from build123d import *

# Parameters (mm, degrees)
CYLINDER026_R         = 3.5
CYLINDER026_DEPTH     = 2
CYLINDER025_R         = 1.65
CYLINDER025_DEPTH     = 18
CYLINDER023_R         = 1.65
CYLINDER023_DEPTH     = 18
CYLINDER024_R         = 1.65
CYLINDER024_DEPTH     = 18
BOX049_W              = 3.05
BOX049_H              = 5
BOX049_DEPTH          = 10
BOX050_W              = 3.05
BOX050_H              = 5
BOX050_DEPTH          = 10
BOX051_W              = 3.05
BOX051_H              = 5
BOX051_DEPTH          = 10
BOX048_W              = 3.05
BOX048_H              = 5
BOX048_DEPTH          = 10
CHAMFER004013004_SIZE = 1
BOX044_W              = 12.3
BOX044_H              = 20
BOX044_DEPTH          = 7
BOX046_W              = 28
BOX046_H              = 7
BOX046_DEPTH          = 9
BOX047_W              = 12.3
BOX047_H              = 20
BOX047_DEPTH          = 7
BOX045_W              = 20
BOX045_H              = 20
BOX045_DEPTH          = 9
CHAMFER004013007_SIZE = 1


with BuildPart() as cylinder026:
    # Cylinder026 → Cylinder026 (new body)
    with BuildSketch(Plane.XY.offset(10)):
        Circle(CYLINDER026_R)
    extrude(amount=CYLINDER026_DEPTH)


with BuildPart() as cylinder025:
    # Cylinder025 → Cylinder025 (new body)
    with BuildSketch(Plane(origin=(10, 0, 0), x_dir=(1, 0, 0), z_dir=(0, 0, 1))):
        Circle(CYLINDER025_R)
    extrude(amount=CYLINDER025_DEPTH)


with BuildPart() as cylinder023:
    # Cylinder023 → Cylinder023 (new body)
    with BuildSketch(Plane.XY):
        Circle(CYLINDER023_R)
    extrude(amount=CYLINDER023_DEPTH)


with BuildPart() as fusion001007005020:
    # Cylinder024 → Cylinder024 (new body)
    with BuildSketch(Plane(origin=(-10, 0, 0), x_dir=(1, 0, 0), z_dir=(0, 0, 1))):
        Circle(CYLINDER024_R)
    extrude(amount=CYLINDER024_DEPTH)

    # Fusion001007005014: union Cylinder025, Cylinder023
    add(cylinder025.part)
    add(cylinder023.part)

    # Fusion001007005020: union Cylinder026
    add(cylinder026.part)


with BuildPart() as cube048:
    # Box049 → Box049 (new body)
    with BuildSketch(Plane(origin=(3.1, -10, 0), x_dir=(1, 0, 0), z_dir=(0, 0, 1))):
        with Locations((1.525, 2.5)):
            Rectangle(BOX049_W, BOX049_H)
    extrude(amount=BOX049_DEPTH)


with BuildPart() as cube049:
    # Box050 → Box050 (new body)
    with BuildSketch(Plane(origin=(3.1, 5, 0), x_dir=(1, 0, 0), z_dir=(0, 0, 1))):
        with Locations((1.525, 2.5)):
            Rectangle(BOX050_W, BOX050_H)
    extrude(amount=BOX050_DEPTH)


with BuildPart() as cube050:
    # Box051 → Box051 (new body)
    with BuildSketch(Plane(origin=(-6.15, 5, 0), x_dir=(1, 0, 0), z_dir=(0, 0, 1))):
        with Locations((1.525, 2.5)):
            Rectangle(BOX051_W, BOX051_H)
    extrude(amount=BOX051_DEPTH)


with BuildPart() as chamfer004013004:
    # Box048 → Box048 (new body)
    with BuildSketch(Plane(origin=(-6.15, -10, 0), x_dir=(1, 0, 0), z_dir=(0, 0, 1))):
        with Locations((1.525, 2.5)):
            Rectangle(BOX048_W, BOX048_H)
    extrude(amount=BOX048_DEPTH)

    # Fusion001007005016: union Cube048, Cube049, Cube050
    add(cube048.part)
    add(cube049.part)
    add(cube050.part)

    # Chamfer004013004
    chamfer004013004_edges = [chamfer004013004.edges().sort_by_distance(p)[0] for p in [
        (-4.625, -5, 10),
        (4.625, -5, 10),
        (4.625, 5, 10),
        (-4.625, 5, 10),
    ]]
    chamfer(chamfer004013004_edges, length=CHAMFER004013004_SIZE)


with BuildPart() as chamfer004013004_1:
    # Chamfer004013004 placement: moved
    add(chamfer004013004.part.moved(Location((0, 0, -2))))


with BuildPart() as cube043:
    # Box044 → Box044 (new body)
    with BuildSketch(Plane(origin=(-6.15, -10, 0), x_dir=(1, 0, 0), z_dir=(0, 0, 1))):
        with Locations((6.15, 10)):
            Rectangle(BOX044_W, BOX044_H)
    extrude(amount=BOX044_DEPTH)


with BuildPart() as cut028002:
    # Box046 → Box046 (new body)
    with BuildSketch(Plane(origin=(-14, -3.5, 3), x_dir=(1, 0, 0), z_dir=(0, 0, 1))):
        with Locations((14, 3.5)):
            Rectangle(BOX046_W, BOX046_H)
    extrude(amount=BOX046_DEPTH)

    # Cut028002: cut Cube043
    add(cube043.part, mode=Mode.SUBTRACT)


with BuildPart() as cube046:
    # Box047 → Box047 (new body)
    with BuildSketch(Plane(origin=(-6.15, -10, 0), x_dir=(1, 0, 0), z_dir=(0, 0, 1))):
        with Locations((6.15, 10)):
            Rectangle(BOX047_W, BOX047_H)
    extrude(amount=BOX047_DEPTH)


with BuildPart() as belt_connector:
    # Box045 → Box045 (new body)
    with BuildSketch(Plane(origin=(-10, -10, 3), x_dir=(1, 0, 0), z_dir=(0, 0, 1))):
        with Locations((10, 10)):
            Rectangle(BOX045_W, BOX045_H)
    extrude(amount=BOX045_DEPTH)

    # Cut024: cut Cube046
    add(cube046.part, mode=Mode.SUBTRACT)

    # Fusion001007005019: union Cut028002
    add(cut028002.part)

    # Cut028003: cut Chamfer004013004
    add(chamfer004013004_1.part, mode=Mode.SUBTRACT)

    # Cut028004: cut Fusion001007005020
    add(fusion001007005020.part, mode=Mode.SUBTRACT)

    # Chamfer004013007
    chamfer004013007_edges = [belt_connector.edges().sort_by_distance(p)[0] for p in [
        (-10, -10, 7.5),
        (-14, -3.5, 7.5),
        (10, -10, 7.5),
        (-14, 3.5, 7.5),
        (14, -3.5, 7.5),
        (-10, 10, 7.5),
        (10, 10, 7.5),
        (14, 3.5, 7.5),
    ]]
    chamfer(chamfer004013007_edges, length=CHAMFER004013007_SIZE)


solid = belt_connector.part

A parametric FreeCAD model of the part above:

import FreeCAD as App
import Part
import Sketcher
from FreeCAD import Vector
Q = App.Units.Quantity


def edges_at(feature, points):
    """Names of the edges that pass closest to the given points."""
    edges = feature.Shape.Edges
    near = lambda p: min(range(len(edges)), key=lambda i: edges[i].distToShape(Part.Vertex(*p))[0])
    return sorted({f"Edge{near(p) + 1}" for p in points})

doc = App.newDocument("Part")
body = doc.addObject("PartDesign::Body", "Body")

sketch1 = body.newObject("Sketcher::SketchObject", "Sketch")
sketch1.AttachmentSupport = (doc.getObject("XY_Plane"), [""])
sketch1.MapMode = "FlatFace"
sketch1.AttachmentOffset = App.Placement(Vector(0, 0, 10), App.Rotation())
sketch1.addGeometry(Part.Circle(Vector(0, 0, 0), Vector(0, 0, 1), 3.5), False)
sketch1.addConstraint([
    Sketcher.Constraint("Coincident", 0, 3, -1, 1),
    Sketcher.Constraint("Diameter", 0, Q("7 mm")),
])
pad1 = body.newObject("PartDesign::Pad", "Pad")
pad1.Profile = sketch1
pad1.Length = 2
body2 = doc.addObject("PartDesign::Body", "Body001")

sketch2 = body2.newObject("Sketcher::SketchObject", "Sketch001")
sketch2.AttachmentSupport = (doc.getObject("XY_Plane001"), [""])
sketch2.MapMode = "FlatFace"
sketch2.addGeometry(Part.Circle(Vector(10, 0, 0), Vector(0, 0, 1), 1.6), False)
sketch2.addConstraint([
    Sketcher.Constraint("PointOnObject", 0, 3, -1),
    Sketcher.Constraint("Diameter", 0, Q("3.3 mm")),
    Sketcher.Constraint("DistanceX", -1, 1, 0, 3, Q("10 mm")),
])
pad2 = body2.newObject("PartDesign::Pad", "Pad001")
pad2.Profile = sketch2
pad2.Length = 18
body3 = doc.addObject("PartDesign::Body", "Body002")

sketch3 = body3.newObject("Sketcher::SketchObject", "Sketch002")
sketch3.AttachmentSupport = (doc.getObject("XY_Plane002"), [""])
sketch3.MapMode = "FlatFace"
sketch3.addGeometry(Part.Circle(Vector(0, 0, 0), Vector(0, 0, 1), 1.6), False)
sketch3.addConstraint([
    Sketcher.Constraint("Coincident", 0, 3, -1, 1),
    Sketcher.Constraint("Diameter", 0, Q("3.3 mm")),
])
pad3 = body3.newObject("PartDesign::Pad", "Pad002")
pad3.Profile = sketch3
pad3.Length = 18
body4 = doc.addObject("PartDesign::Body", "Body003")
body4.AllowCompound = True

sketch4 = body4.newObject("Sketcher::SketchObject", "Sketch003")
sketch4.AttachmentSupport = (doc.getObject("XY_Plane003"), [""])
sketch4.MapMode = "FlatFace"
sketch4.addGeometry(Part.Circle(Vector(-10, 0, 0), Vector(0, 0, 1), 1.6), False)
sketch4.addConstraint([
    Sketcher.Constraint("PointOnObject", 0, 3, -1),
    Sketcher.Constraint("Diameter", 0, Q("3.3 mm")),
    Sketcher.Constraint("DistanceX", 0, 3, -1, 1, Q("10 mm")),
])
pad4 = body4.newObject("PartDesign::Pad", "Pad003")
pad4.Profile = sketch4
pad4.Length = 18
doc.recompute()

boolean = body4.newObject("PartDesign::Boolean", "Boolean")
boolean.Type = "Fuse"
boolean.addObjects([body2])
doc.recompute()

boolean2 = body4.newObject("PartDesign::Boolean", "Boolean001")
boolean2.Type = "Fuse"
boolean2.addObjects([body3])
doc.recompute()

boolean3 = body4.newObject("PartDesign::Boolean", "Boolean002")
boolean3.Type = "Fuse"
boolean3.addObjects([body])
body5 = doc.addObject("PartDesign::Body", "Body004")

sketch5 = body5.newObject("Sketcher::SketchObject", "Sketch004")
sketch5.AttachmentSupport = (doc.getObject("XY_Plane004"), [""])
sketch5.MapMode = "FlatFace"
sketch5.addGeometry([
    Part.LineSegment(Vector(3.1, -5, 0), Vector(3.1, -10, 0)),
    Part.LineSegment(Vector(3.1, -10, 0), Vector(6.2, -10, 0)),
    Part.LineSegment(Vector(6.2, -10, 0), Vector(6.2, -5, 0)),
    Part.LineSegment(Vector(6.2, -5, 0), Vector(3.1, -5, 0)),
], False)
sketch5.addConstraint([
    Sketcher.Constraint("Coincident", 0, 2, 1, 1),
    Sketcher.Constraint("Coincident", 1, 2, 2, 1),
    Sketcher.Constraint("Coincident", 2, 2, 3, 1),
    Sketcher.Constraint("Coincident", 3, 2, 0, 1),
    Sketcher.Constraint("Vertical", 0),
    Sketcher.Constraint("Horizontal", 1),
    Sketcher.Constraint("Vertical", 2),
    Sketcher.Constraint("Horizontal", 3),
    Sketcher.Constraint("DistanceY", 0, 2, 0, 1, Q("5 mm")),
    Sketcher.Constraint("DistanceY", 0, 2, -1, 1, Q("10 mm")),
    Sketcher.Constraint("DistanceX", 1, 1, 1, 2, Q("3.05 mm")),
    Sketcher.Constraint("DistanceX", -1, 1, 0, 2, Q("3.1 mm")),
])
pad5 = body5.newObject("PartDesign::Pad", "Pad004")
pad5.Profile = sketch5
pad5.Length = 10
body6 = doc.addObject("PartDesign::Body", "Body005")

sketch6 = body6.newObject("Sketcher::SketchObject", "Sketch005")
sketch6.AttachmentSupport = (doc.getObject("XY_Plane005"), [""])
sketch6.MapMode = "FlatFace"
sketch6.addGeometry([
    Part.LineSegment(Vector(3.1, 10, 0), Vector(3.1, 5, 0)),
    Part.LineSegment(Vector(3.1, 5, 0), Vector(6.2, 5, 0)),
    Part.LineSegment(Vector(6.2, 5, 0), Vector(6.2, 10, 0)),
    Part.LineSegment(Vector(6.2, 10, 0), Vector(3.1, 10, 0)),
], False)
sketch6.addConstraint([
    Sketcher.Constraint("Coincident", 0, 2, 1, 1),
    Sketcher.Constraint("Coincident", 1, 2, 2, 1),
    Sketcher.Constraint("Coincident", 2, 2, 3, 1),
    Sketcher.Constraint("Coincident", 3, 2, 0, 1),
    Sketcher.Constraint("Vertical", 0),
    Sketcher.Constraint("Horizontal", 1),
    Sketcher.Constraint("Vertical", 2),
    Sketcher.Constraint("Horizontal", 3),
    Sketcher.Constraint("DistanceY", 0, 2, 0, 1, Q("5 mm")),
    Sketcher.Constraint("DistanceY", -1, 1, 0, 2, Q("5 mm")),
    Sketcher.Constraint("DistanceX", 1, 1, 1, 2, Q("3.05 mm")),
    Sketcher.Constraint("DistanceX", -1, 1, 0, 2, Q("3.1 mm")),
])
pad6 = body6.newObject("PartDesign::Pad", "Pad005")
pad6.Profile = sketch6
pad6.Length = 10
body7 = doc.addObject("PartDesign::Body", "Body006")

sketch7 = body7.newObject("Sketcher::SketchObject", "Sketch006")
sketch7.AttachmentSupport = (doc.getObject("XY_Plane006"), [""])
sketch7.MapMode = "FlatFace"
sketch7.addGeometry([
    Part.LineSegment(Vector(-6.2, 10, 0), Vector(-6.2, 5, 0)),
    Part.LineSegment(Vector(-6.2, 5, 0), Vector(-3.1, 5, 0)),
    Part.LineSegment(Vector(-3.1, 5, 0), Vector(-3.1, 10, 0)),
    Part.LineSegment(Vector(-3.1, 10, 0), Vector(-6.2, 10, 0)),
], False)
sketch7.addConstraint([
    Sketcher.Constraint("Coincident", 0, 2, 1, 1),
    Sketcher.Constraint("Coincident", 1, 2, 2, 1),
    Sketcher.Constraint("Coincident", 2, 2, 3, 1),
    Sketcher.Constraint("Coincident", 3, 2, 0, 1),
    Sketcher.Constraint("Vertical", 0),
    Sketcher.Constraint("Horizontal", 1),
    Sketcher.Constraint("Vertical", 2),
    Sketcher.Constraint("Horizontal", 3),
    Sketcher.Constraint("DistanceY", 0, 2, 0, 1, Q("5 mm")),
    Sketcher.Constraint("DistanceY", -1, 1, 0, 2, Q("5 mm")),
    Sketcher.Constraint("DistanceX", 1, 1, 1, 2, Q("3.05 mm")),
    Sketcher.Constraint("DistanceX", 1, 2, -1, 1, Q("3.1 mm")),
])
pad7 = body7.newObject("PartDesign::Pad", "Pad006")
pad7.Profile = sketch7
pad7.Length = 10
body8 = doc.addObject("PartDesign::Body", "Body007")
body8.AllowCompound = True

sketch8 = body8.newObject("Sketcher::SketchObject", "Sketch007")
sketch8.AttachmentSupport = (doc.getObject("XY_Plane007"), [""])
sketch8.MapMode = "FlatFace"
sketch8.addGeometry([
    Part.LineSegment(Vector(-6.2, -5, 0), Vector(-6.2, -10, 0)),
    Part.LineSegment(Vector(-6.2, -10, 0), Vector(-3.1, -10, 0)),
    Part.LineSegment(Vector(-3.1, -10, 0), Vector(-3.1, -5, 0)),
    Part.LineSegment(Vector(-3.1, -5, 0), Vector(-6.2, -5, 0)),
], False)
sketch8.addConstraint([
    Sketcher.Constraint("Coincident", 0, 2, 1, 1),
    Sketcher.Constraint("Coincident", 1, 2, 2, 1),
    Sketcher.Constraint("Coincident", 2, 2, 3, 1),
    Sketcher.Constraint("Coincident", 3, 2, 0, 1),
    Sketcher.Constraint("Vertical", 0),
    Sketcher.Constraint("Horizontal", 1),
    Sketcher.Constraint("Vertical", 2),
    Sketcher.Constraint("Horizontal", 3),
    Sketcher.Constraint("DistanceY", 0, 2, 0, 1, Q("5 mm")),
    Sketcher.Constraint("DistanceY", 0, 2, -1, 1, Q("10 mm")),
    Sketcher.Constraint("DistanceX", 1, 1, 1, 2, Q("3.05 mm")),
    Sketcher.Constraint("DistanceX", 1, 2, -1, 1, Q("3.1 mm")),
])
pad8 = body8.newObject("PartDesign::Pad", "Pad007")
pad8.Profile = sketch8
pad8.Length = 10
doc.recompute()

boolean4 = body8.newObject("PartDesign::Boolean", "Boolean003")
boolean4.Type = "Fuse"
boolean4.addObjects([body5])
doc.recompute()

boolean5 = body8.newObject("PartDesign::Boolean", "Boolean004")
boolean5.Type = "Fuse"
boolean5.addObjects([body6])
doc.recompute()

boolean6 = body8.newObject("PartDesign::Boolean", "Boolean005")
boolean6.Type = "Fuse"
boolean6.addObjects([body7])
doc.recompute()

chamfer = body8.newObject("PartDesign::Chamfer", "Chamfer")
chamfer.Base = (boolean6, edges_at(boolean6, [
    (-4.625, -5, 10),
    (4.625, -5, 10),
    (4.625, 5, 10),
    (-4.625, 5, 10),
]))
chamfer.Size = 1
body9 = doc.addObject("PartDesign::Body", "Body008")
body9.AllowCompound = True
doc.recompute()

body8.Placement = App.Placement(Vector(0, 0, -2), App.Rotation(Vector(0, 0, 1), 0))
boolean7 = body9.newObject("PartDesign::Boolean", "Boolean006")
boolean7.Type = "Fuse"
boolean7.addObjects([body8])
body10 = doc.addObject("PartDesign::Body", "Body009")

sketch9 = body10.newObject("Sketcher::SketchObject", "Sketch008")
sketch9.AttachmentSupport = (doc.getObject("XY_Plane009"), [""])
sketch9.MapMode = "FlatFace"
sketch9.addGeometry([
    Part.LineSegment(Vector(-6, 10, 0), Vector(-6, -10, 0)),
    Part.LineSegment(Vector(-6, -10, 0), Vector(6, -10, 0)),
    Part.LineSegment(Vector(6, -10, 0), Vector(6, 10, 0)),
    Part.LineSegment(Vector(6, 10, 0), Vector(-6, 10, 0)),
], False)
sketch9.addConstraint([
    Sketcher.Constraint("Coincident", 0, 2, 1, 1),
    Sketcher.Constraint("Coincident", 1, 2, 2, 1),
    Sketcher.Constraint("Coincident", 2, 2, 3, 1),
    Sketcher.Constraint("Coincident", 3, 2, 0, 1),
    Sketcher.Constraint("Vertical", 0),
    Sketcher.Constraint("Horizontal", 1),
    Sketcher.Constraint("Vertical", 2),
    Sketcher.Constraint("Horizontal", 3),
    Sketcher.Constraint("Symmetric", 0, 2, 2, 2, -1, 1),
    Sketcher.Constraint("DistanceY", 0, 2, 0, 1, Q("20 mm")),
    Sketcher.Constraint("DistanceX", 1, 1, 1, 2, Q("12.3 mm")),
])
pad9 = body10.newObject("PartDesign::Pad", "Pad008")
pad9.Profile = sketch9
pad9.Length = 7
body11 = doc.addObject("PartDesign::Body", "Body010")

sketch10 = body11.newObject("Sketcher::SketchObject", "Sketch009")
sketch10.AttachmentSupport = (doc.getObject("XY_Plane010"), [""])
sketch10.MapMode = "FlatFace"
sketch10.AttachmentOffset = App.Placement(Vector(0, 0, 3), App.Rotation())
sketch10.addGeometry([
    Part.LineSegment(Vector(-14, 4, 0), Vector(-14, -4, 0)),
    Part.LineSegment(Vector(-14, -4, 0), Vector(14, -4, 0)),
    Part.LineSegment(Vector(14, -4, 0), Vector(14, 4, 0)),
    Part.LineSegment(Vector(14, 4, 0), Vector(-14, 4, 0)),
], False)
sketch10.addConstraint([
    Sketcher.Constraint("Coincident", 0, 2, 1, 1),
    Sketcher.Constraint("Coincident", 1, 2, 2, 1),
    Sketcher.Constraint("Coincident", 2, 2, 3, 1),
    Sketcher.Constraint("Coincident", 3, 2, 0, 1),
    Sketcher.Constraint("Vertical", 0),
    Sketcher.Constraint("Horizontal", 1),
    Sketcher.Constraint("Vertical", 2),
    Sketcher.Constraint("Horizontal", 3),
    Sketcher.Constraint("Symmetric", 0, 2, 2, 2, -1, 1),
    Sketcher.Constraint("DistanceX", 1, 1, 1, 2, Q("28 mm")),
    Sketcher.Constraint("DistanceY", 0, 2, 0, 1, Q("7 mm")),
])
pad10 = body11.newObject("PartDesign::Pad", "Pad009")
pad10.Profile = sketch10
pad10.Length = 9
doc.recompute()

boolean8 = body11.newObject("PartDesign::Boolean", "Boolean007")
boolean8.Type = "Cut"
boolean8.addObjects([body10])
body12 = doc.addObject("PartDesign::Body", "Body011")

sketch11 = body12.newObject("Sketcher::SketchObject", "Sketch010")
sketch11.AttachmentSupport = (doc.getObject("XY_Plane011"), [""])
sketch11.MapMode = "FlatFace"
sketch11.addGeometry([
    Part.LineSegment(Vector(-6, 10, 0), Vector(-6, -10, 0)),
    Part.LineSegment(Vector(-6, -10, 0), Vector(6, -10, 0)),
    Part.LineSegment(Vector(6, -10, 0), Vector(6, 10, 0)),
    Part.LineSegment(Vector(6, 10, 0), Vector(-6, 10, 0)),
], False)
sketch11.addConstraint([
    Sketcher.Constraint("Coincident", 0, 2, 1, 1),
    Sketcher.Constraint("Coincident", 1, 2, 2, 1),
    Sketcher.Constraint("Coincident", 2, 2, 3, 1),
    Sketcher.Constraint("Coincident", 3, 2, 0, 1),
    Sketcher.Constraint("Vertical", 0),
    Sketcher.Constraint("Horizontal", 1),
    Sketcher.Constraint("Vertical", 2),
    Sketcher.Constraint("Horizontal", 3),
    Sketcher.Constraint("Symmetric", 0, 2, 2, 2, -1, 1),
    Sketcher.Constraint("DistanceY", 0, 2, 0, 1, Q("20 mm")),
    Sketcher.Constraint("DistanceX", 1, 1, 1, 2, Q("12.3 mm")),
])
pad11 = body12.newObject("PartDesign::Pad", "Pad010")
pad11.Profile = sketch11
pad11.Length = 7
body13 = doc.addObject("PartDesign::Body", "Body012")

sketch12 = body13.newObject("Sketcher::SketchObject", "Sketch011")
sketch12.AttachmentSupport = (doc.getObject("XY_Plane012"), [""])
sketch12.MapMode = "FlatFace"
sketch12.AttachmentOffset = App.Placement(Vector(0, 0, 3), App.Rotation())
sketch12.addGeometry([
    Part.LineSegment(Vector(-10, 10, 0), Vector(-10, -10, 0)),
    Part.LineSegment(Vector(-10, -10, 0), Vector(10, -10, 0)),
    Part.LineSegment(Vector(10, -10, 0), Vector(10, 10, 0)),
    Part.LineSegment(Vector(10, 10, 0), Vector(-10, 10, 0)),
], False)
sketch12.addConstraint([
    Sketcher.Constraint("Coincident", 0, 2, 1, 1),
    Sketcher.Constraint("Coincident", 1, 2, 2, 1),
    Sketcher.Constraint("Coincident", 2, 2, 3, 1),
    Sketcher.Constraint("Coincident", 3, 2, 0, 1),
    Sketcher.Constraint("Vertical", 0),
    Sketcher.Constraint("Horizontal", 1),
    Sketcher.Constraint("Vertical", 2),
    Sketcher.Constraint("Horizontal", 3),
    Sketcher.Constraint("Symmetric", 0, 2, 2, 2, -1, 1),
    Sketcher.Constraint("Equal", 3, 0),
    Sketcher.Constraint("DistanceX", 1, 1, 1, 2, Q("20 mm")),
])
pad12 = body13.newObject("PartDesign::Pad", "Pad011")
pad12.Profile = sketch12
pad12.Length = 9
doc.recompute()

boolean9 = body13.newObject("PartDesign::Boolean", "Boolean008")
boolean9.Type = "Cut"
boolean9.addObjects([body12])
doc.recompute()

boolean10 = body13.newObject("PartDesign::Boolean", "Boolean009")
boolean10.Type = "Fuse"
boolean10.addObjects([body11])
doc.recompute()

boolean11 = body13.newObject("PartDesign::Boolean", "Boolean010")
boolean11.Type = "Cut"
boolean11.addObjects([body9])
doc.recompute()

boolean12 = body13.newObject("PartDesign::Boolean", "Boolean011")
boolean12.Type = "Cut"
boolean12.addObjects([body4])
doc.recompute()

chamfer2 = body13.newObject("PartDesign::Chamfer", "Chamfer001")
chamfer2.Base = (boolean12, edges_at(boolean12, [
    (-10, -10, 7.5),
    (-14, -3.5, 7.5),
    (10, -10, 7.5),
    (-14, 3.5, 7.5),
    (14, -3.5, 7.5),
    (-10, 10, 7.5),
    (10, 10, 7.5),
    (14, 3.5, 7.5),
]))
chamfer2.Size = 1

doc.recompute()
